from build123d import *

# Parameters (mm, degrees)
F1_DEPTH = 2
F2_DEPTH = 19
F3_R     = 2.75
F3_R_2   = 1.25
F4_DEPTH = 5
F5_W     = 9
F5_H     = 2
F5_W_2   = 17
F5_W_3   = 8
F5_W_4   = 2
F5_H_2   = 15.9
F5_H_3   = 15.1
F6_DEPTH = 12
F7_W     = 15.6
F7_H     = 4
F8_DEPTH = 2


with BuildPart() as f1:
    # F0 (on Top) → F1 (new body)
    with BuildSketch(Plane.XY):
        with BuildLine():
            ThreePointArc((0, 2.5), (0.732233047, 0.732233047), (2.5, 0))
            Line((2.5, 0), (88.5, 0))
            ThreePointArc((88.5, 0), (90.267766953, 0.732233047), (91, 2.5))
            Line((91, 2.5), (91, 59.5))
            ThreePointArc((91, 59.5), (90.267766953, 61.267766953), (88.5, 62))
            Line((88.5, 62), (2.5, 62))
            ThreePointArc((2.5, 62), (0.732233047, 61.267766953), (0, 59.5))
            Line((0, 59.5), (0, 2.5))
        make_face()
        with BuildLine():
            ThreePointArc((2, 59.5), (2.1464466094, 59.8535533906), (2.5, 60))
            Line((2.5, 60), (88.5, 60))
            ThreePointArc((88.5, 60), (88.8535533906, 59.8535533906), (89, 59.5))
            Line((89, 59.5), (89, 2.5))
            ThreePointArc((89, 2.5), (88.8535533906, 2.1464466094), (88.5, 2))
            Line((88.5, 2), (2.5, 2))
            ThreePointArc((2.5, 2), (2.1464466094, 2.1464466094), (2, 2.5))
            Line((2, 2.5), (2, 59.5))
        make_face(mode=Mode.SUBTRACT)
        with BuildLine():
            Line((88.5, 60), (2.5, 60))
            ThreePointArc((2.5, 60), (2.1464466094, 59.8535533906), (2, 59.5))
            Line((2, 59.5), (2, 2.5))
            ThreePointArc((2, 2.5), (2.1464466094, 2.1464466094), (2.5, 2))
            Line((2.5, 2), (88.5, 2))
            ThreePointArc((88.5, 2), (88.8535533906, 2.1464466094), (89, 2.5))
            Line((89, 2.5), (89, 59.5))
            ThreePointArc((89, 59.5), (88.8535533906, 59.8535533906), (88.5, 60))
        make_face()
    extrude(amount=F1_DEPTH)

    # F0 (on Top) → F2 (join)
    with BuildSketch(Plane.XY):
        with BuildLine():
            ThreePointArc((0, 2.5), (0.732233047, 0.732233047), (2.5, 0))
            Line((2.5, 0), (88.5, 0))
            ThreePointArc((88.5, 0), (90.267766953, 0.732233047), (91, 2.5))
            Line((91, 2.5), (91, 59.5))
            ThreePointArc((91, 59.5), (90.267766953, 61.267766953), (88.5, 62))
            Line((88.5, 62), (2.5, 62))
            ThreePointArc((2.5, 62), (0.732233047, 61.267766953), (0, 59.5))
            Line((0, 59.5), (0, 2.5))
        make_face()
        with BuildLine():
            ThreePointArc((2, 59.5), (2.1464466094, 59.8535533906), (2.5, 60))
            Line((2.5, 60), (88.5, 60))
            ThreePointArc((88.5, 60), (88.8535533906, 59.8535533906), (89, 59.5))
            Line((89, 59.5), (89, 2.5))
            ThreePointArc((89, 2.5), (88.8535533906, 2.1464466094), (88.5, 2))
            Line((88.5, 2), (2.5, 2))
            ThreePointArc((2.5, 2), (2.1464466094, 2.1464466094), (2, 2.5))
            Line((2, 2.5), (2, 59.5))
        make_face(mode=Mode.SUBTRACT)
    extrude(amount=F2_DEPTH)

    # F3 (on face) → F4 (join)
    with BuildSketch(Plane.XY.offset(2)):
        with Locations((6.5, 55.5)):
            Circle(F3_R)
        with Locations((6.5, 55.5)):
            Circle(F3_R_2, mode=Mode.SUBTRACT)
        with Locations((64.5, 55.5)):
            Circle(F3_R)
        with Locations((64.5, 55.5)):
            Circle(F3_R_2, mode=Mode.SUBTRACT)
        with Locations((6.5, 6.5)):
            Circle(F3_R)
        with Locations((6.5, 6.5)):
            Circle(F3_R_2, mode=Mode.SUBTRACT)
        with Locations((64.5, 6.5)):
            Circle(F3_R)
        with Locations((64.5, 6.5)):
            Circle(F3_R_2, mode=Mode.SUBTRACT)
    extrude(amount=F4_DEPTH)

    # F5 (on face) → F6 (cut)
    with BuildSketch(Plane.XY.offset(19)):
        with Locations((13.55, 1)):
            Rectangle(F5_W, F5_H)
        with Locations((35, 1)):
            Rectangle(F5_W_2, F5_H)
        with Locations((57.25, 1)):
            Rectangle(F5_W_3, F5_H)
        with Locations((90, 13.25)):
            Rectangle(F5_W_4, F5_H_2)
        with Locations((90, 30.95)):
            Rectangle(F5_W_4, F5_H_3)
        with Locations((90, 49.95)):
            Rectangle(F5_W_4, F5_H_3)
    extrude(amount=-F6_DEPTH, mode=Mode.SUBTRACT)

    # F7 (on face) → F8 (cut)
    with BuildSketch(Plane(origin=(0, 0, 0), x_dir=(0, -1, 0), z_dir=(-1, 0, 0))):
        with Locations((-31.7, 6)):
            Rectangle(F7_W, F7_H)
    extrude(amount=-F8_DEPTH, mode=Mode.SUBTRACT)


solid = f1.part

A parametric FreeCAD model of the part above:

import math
import FreeCAD as App
import Part
import Sketcher

doc = App.newDocument("Part")
body = doc.addObject("PartDesign::Body", "Body")

sketch1 = body.newObject("Sketcher::SketchObject", "Sketch")
sketch1.AttachmentSupport = (doc.getObject("XY_Plane"), [""])
sketch1.MapMode = "FlatFace"
sketch1.addGeometry([
    Part.ArcOfCircle(Part.Circle(App.Vector(2.5, 2.5, 0), App.Vector(0, 0, 1), 2.5), math.radians(180), math.radians(270)),
    Part.LineSegment(App.Vector(2.5, 0, 0), App.Vector(88.5, 0, 0)),
    Part.ArcOfCircle(Part.Circle(App.Vector(88.5, 2.5, 0), App.Vector(0, 0, 1), 2.5), math.radians(-90), math.radians(0)),
    Part.LineSegment(App.Vector(91, 2.5, 0), App.Vector(91, 59.5, 0)),
    Part.ArcOfCircle(Part.Circle(App.Vector(88.5, 59.5, 0), App.Vector(0, 0, 1), 2.5), math.radians(0), math.radians(90)),
    Part.LineSegment(App.Vector(88.5, 62, 0), App.Vector(2.5, 62, 0)),
    Part.ArcOfCircle(Part.Circle(App.Vector(2.5, 59.5, 0), App.Vector(0, 0, 1), 2.5), math.radians(90), math.radians(180)),
    Part.LineSegment(App.Vector(0, 59.5, 0), App.Vector(0, 2.5, 0)),
], False)
sketch1.addConstraint([
    Sketcher.Constraint("Tangent", 0, 2, 1, 1),
    Sketcher.Constraint("Tangent", 1, 2, 2, 1),
    Sketcher.Constraint("Tangent", 2, 2, 3, 1),
    Sketcher.Constraint("Tangent", 3, 2, 4, 1),
    Sketcher.Constraint("Tangent", 4, 2, 5, 1),
    Sketcher.Constraint("Tangent", 5, 2, 6, 1),
    Sketcher.Constraint("Tangent", 6, 2, 7, 1),
    Sketcher.Constraint("Tangent", 7, 2, 0, 1),
    Sketcher.Constraint("Horizontal", 1),
    Sketcher.Constraint("Vertical", 3),
    Sketcher.Constraint("Horizontal", 5),
    Sketcher.Constraint("Vertical", 7),
    Sketcher.Constraint("Equal", 0, 2),
    Sketcher.Constraint("Equal", 2, 4),
    Sketcher.Constraint("Equal", 4, 6),
    Sketcher.Constraint("PointOnObject", 0, 2, -1),
    Sketcher.Constraint("PointOnObject", 6, 2, -2),
    Sketcher.Constraint("Radius", 0, 2.5),
    Sketcher.Constraint("DistanceX", 1, 1, 1, 2, 86.0),
    Sketcher.Constraint("DistanceY", 3, 1, 3, 2, 57.0),
])
pad1 = body.newObject("PartDesign::Pad", "Pad")
pad1.Profile = sketch1
pad1.Length = 2

sketch2 = body.newObject("Sketcher::SketchObject", "Sketch001")
sketch2.AttachmentSupport = (doc.getObject("XY_Plane"), [""])
sketch2.MapMode = "FlatFace"
sketch2.addGeometry([
    Part.ArcOfCircle(Part.Circle(App.Vector(2.5, 2.5, 0), App.Vector(0, 0, 1), 2.5), math.radians(180), math.radians(270)),
    Part.LineSegment(App.Vector(2.5, 0, 0), App.Vector(88.5, 0, 0)),
    Part.ArcOfCircle(Part.Circle(App.Vector(88.5, 2.5, 0), App.Vector(0, 0, 1), 2.5), math.radians(-90), math.radians(0)),
    Part.LineSegment(App.Vector(91, 2.5, 0), App.Vector(91, 59.5, 0)),
    Part.ArcOfCircle(Part.Circle(App.Vector(88.5, 59.5, 0), App.Vector(0, 0, 1), 2.5), math.radians(0), math.radians(90)),
    Part.LineSegment(App.Vector(88.5, 62, 0), App.Vector(2.5, 62, 0)),
    Part.ArcOfCircle(Part.Circle(App.Vector(2.5, 59.5, 0), App.Vector(0, 0, 1), 2.5), math.radians(90), math.radians(180)),
    Part.LineSegment(App.Vector(0, 59.5, 0), App.Vector(0, 2.5, 0)),
    Part.LineSegment(App.Vector(2, 2.5, 0), App.Vector(2, 59.5, 0)),
    Part.ArcOfCircle(Part.Circle(App.Vector(2.5, 59.5, 0), App.Vector(0, 0, 1), 0.5), math.radians(90), math.radians(180)),
    Part.LineSegment(App.Vector(2.5, 60, 0), App.Vector(88.5, 60, 0)),
    Part.ArcOfCircle(Part.Circle(App.Vector(88.5, 59.5, 0), App.Vector(0, 0, 1), 0.5), math.radians(0), math.radians(90)),
    Part.LineSegment(App.Vector(89, 59.5, 0), App.Vector(89, 2.5, 0)),
    Part.ArcOfCircle(Part.Circle(App.Vector(88.5, 2.5, 0), App.Vector(0, 0, 1), 0.5), math.radians(-90), math.radians(0)),
    Part.LineSegment(App.Vector(88.5, 2, 0), App.Vector(2.5, 2, 0)),
    Part.ArcOfCircle(Part.Circle(App.Vector(2.5, 2.5, 0), App.Vector(0, 0, 1), 0.5), math.radians(180), math.radians(270)),
], False)
sketch2.addConstraint([
    Sketcher.Constraint("Tangent", 0, 2, 1, 1),
    Sketcher.Constraint("Tangent", 1, 2, 2, 1),
    Sketcher.Constraint("Tangent", 2, 2, 3, 1),
    Sketcher.Constraint("Tangent", 3, 2, 4, 1),
    Sketcher.Constraint("Tangent", 4, 2, 5, 1),
    Sketcher.Constraint("Tangent", 5, 2, 6, 1),
    Sketcher.Constraint("Tangent", 6, 2, 7, 1),
    Sketcher.Constraint("Tangent", 7, 2, 0, 1),
    Sketcher.Constraint("Tangent", 8, 2, 9, 2),
    Sketcher.Constraint("Tangent", 9, 1, 10, 1),
    Sketcher.Constraint("Tangent", 10, 2, 11, 2),
    Sketcher.Constraint("Tangent", 11, 1, 12, 1),
    Sketcher.Constraint("Tangent", 12, 2, 13, 2),
    Sketcher.Constraint("Tangent", 13, 1, 14, 1),
    Sketcher.Constraint("Tangent", 14, 2, 15, 2),
    Sketcher.Constraint("Tangent", 15, 1, 8, 1),
    Sketcher.Constraint("Horizontal", 1),
    Sketcher.Constraint("Vertical", 3),
    Sketcher.Constraint("Horizontal", 5),
    Sketcher.Constraint("Vertical", 7),
    Sketcher.Constraint("Vertical", 8),
    Sketcher.Constraint("Horizontal", 10),
    Sketcher.Constraint("Vertical", 12),
    Sketcher.Constraint("Horizontal", 14),
    Sketcher.Constraint("Coincident", 9, 3, 6, 3),
    Sketcher.Constraint("Coincident", 11, 3, 4, 3),
    Sketcher.Constraint("Coincident", 13, 3, 2, 3),
    Sketcher.Constraint("Equal", 0, 2),
    Sketcher.Constraint("Equal", 2, 4),
    Sketcher.Constraint("Equal", 4, 6),
    Sketcher.Constraint("Equal", 13, 15),
    Sketcher.Constraint("PointOnObject", 0, 2, -1),
    Sketcher.Constraint("PointOnObject", 6, 2, -2),
    Sketcher.Constraint("Radius", 0, 2.5),
    Sketcher.Constraint("Radius", 9, 0.5),
    Sketcher.Constraint("DistanceX", 1, 1, 1, 2, 86.0),
    Sketcher.Constraint("DistanceY", 3, 1, 3, 2, 57.0),
])
pad2 = body.newObject("PartDesign::Pad", "Pad001")
pad2.Profile = sketch2
pad2.Length = 19

sketch3 = body.newObject("Sketcher::SketchObject", "Sketch002")
sketch3.AttachmentSupport = (doc.getObject("XY_Plane"), [""])
sketch3.MapMode = "FlatFace"
sketch3.AttachmentOffset = App.Placement(App.Vector(0, 0, 2), App.Rotation())
sketch3.addGeometry([
    Part.Circle(App.Vector(6.5, 55.5, 0), App.Vector(0, 0, 1), 2.8),
    Part.Circle(App.Vector(6.5, 55.5, 0), App.Vector(0, 0, 1), 1.2),
    Part.Circle(App.Vector(64.5, 55.5, 0), App.Vector(0, 0, 1), 2.8),
    Part.Circle(App.Vector(64.5, 55.5, 0), App.Vector(0, 0, 1), 1.2),
    Part.Circle(App.Vector(6.5, 6.5, 0), App.Vector(0, 0, 1), 2.8),
    Part.Circle(App.Vector(6.5, 6.5, 0), App.Vector(0, 0, 1), 1.2),
    Part.Circle(App.Vector(64.5, 6.5, 0), App.Vector(0, 0, 1), 2.8),
    Part.Circle(App.Vector(64.5, 6.5, 0), App.Vector(0, 0, 1), 1.2),
], False)
sketch3.addConstraint([
    Sketcher.Constraint("Coincident", 1, 3, 0, 3),
    Sketcher.Constraint("Coincident", 3, 3, 2, 3),
    Sketcher.Constraint("Coincident", 5, 3, 4, 3),
    Sketcher.Constraint("Coincident", 7, 3, 6, 3),
    Sketcher.Constraint("Equal", 0, 2),
    Sketcher.Constraint("Equal", 1, 3),
    Sketcher.Constraint("Equal", 2, 4),
    Sketcher.Constraint("Equal", 3, 5),
    Sketcher.Constraint("Equal", 4, 6),
    Sketcher.Constraint("Equal", 5, 7),
    Sketcher.Constraint("Horizontal", 1, 3, 2, 3),
    Sketcher.Constraint("Horizontal", 5, 3, 6, 3),
    Sketcher.Constraint("Vertical", 1, 3, 4, 3),
    Sketcher.Constraint("Vertical", 3, 3, 6, 3),
    Sketcher.Constraint("Diameter", 0, 5.5),
    Sketcher.Constraint("Diameter", 1, 2.5),
    Sketcher.Constraint("DistanceX", 0, 3, 2, 3, 58.0),
    Sketcher.Constraint("DistanceY", 4, 3, 0, 3, 49.0),
    Sketcher.Constraint("DistanceX", -1, 1, 0, 3, 6.5),
    Sketcher.Constraint("DistanceY", -1, 1, 0, 3, 55.5),
])
pad3 = body.newObject("PartDesign::Pad", "Pad002")
pad3.Profile = sketch3
pad3.Length = 5

sketch4 = body.newObject("Sketcher::SketchObject", "Sketch003")
sketch4.AttachmentSupport = (doc.getObject("XY_Plane"), [""])
sketch4.MapMode = "FlatFace"
sketch4.AttachmentOffset = App.Placement(App.Vector(0, 0, 19), App.Rotation())
sketch4.addGeometry([
    Part.LineSegment(App.Vector(9.1, 2, 0), App.Vector(9.1, 0, 0)),
    Part.LineSegment(App.Vector(9.1, 0, 0), App.Vector(18.1, 0, 0)),
    Part.LineSegment(App.Vector(18.1, 0, 0), App.Vector(18.1, 2, 0)),
    Part.LineSegment(App.Vector(18.1, 2, 0), App.Vector(9.1, 2, 0)),
    Part.LineSegment(App.Vector(26.5, 2, 0), App.Vector(26.5, 0, 0)),
    Part.LineSegment(App.Vector(26.5, 0, 0), App.Vector(43.5, 0, 0)),
    Part.LineSegment(App.Vector(43.5, 0, 0), App.Vector(43.5, 2, 0)),
    Part.LineSegment(App.Vector(43.5, 2, 0), App.Vector(26.5, 2, 0)),
    Part.LineSegment(App.Vector(53.2, 2, 0), App.Vector(53.2, 0, 0)),
    Part.LineSegment(App.Vector(53.2, 0, 0), App.Vector(61.2, 0, 0)),
    Part.LineSegment(App.Vector(61.2, 0, 0), App.Vector(61.2, 2, 0)),
    Part.LineSegment(App.Vector(61.2, 2, 0), App.Vector(53.2, 2, 0)),
    Part.LineSegment(App.Vector(89, 21.2, 0), App.Vector(89, 5.3, 0)),
    Part.LineSegment(App.Vector(89, 5.3, 0), App.Vector(91, 5.3, 0)),
    Part.LineSegment(App.Vector(91, 5.3, 0), App.Vector(91, 21.2, 0)),
    Part.LineSegment(App.Vector(91, 21.2, 0), App.Vector(89, 21.2, 0)),
    Part.LineSegment(App.Vector(89, 38.5, 0), App.Vector(89, 23.4, 0)),
    Part.LineSegment(App.Vector(89, 23.4, 0), App.Vector(91, 23.4, 0)),
    Part.LineSegment(App.Vector(91, 23.4, 0), App.Vector(91, 38.5, 0)),
    Part.LineSegment(App.Vector(91, 38.5, 0), App.Vector(89, 38.5, 0)),
    Part.LineSegment(App.Vector(89, 57.5, 0), App.Vector(89, 42.4, 0)),
    Part.LineSegment(App.Vector(89, 42.4, 0), App.Vector(91, 42.4, 0)),
    Part.LineSegment(App.Vector(91, 42.4, 0), App.Vector(91, 57.5, 0)),
    Part.LineSegment(App.Vector(91, 57.5, 0), App.Vector(89, 57.5, 0)),
], False)
sketch4.addConstraint([
    Sketcher.Constraint("Coincident", 0, 2, 1, 1),
    Sketcher.Constraint("Coincident", 1, 2, 2, 1),
    Sketcher.Constraint("Coincident", 2, 2, 3, 1),
    Sketcher.Constraint("Coincident", 3, 2, 0, 1),
    Sketcher.Constraint("Coincident", 4, 2, 5, 1),
    Sketcher.Constraint("Coincident", 5, 2, 6, 1),
    Sketcher.Constraint("Coincident", 6, 2, 7, 1),
    Sketcher.Constraint("Coincident", 7, 2, 4, 1),
    Sketcher.Constraint("Coincident", 8, 2, 9, 1),
    Sketcher.Constraint("Coincident", 9, 2, 10, 1),
    Sketcher.Constraint("Coincident", 10, 2, 11, 1),
    Sketcher.Constraint("Coincident", 11, 2, 8, 1),
    Sketcher.Constraint("Coincident", 12, 2, 13, 1),
    Sketcher.Constraint("Coincident", 13, 2, 14, 1),
    Sketcher.Constraint("Coincident", 14, 2, 15, 1),
    Sketcher.Constraint("Coincident", 15, 2, 12, 1),
    Sketcher.Constraint("Coincident", 16, 2, 17, 1),
    Sketcher.Constraint("Coincident", 17, 2, 18, 1),
    Sketcher.Constraint("Coincident", 18, 2, 19, 1),
    Sketcher.Constraint("Coincident", 19, 2, 16, 1),
    Sketcher.Constraint("Coincident", 20, 2, 21, 1),
    Sketcher.Constraint("Coincident", 21, 2, 22, 1),
    Sketcher.Constraint("Coincident", 22, 2, 23, 1),
    Sketcher.Constraint("Coincident", 23, 2, 20, 1),
    Sketcher.Constraint("Vertical", 0),
    Sketcher.Constraint("Horizontal", 1),
    Sketcher.Constraint("Vertical", 2),
    Sketcher.Constraint("Horizontal", 3),
    Sketcher.Constraint("Vertical", 4),
    Sketcher.Constraint("Horizontal", 5),
    Sketcher.Constraint("Vertical", 6),
    Sketcher.Constraint("Horizontal", 7),
    Sketcher.Constraint("Vertical", 8),
    Sketcher.Constraint("Horizontal", 9),
    Sketcher.Constraint("Vertical", 10),
    Sketcher.Constraint("Horizontal", 11),
    Sketcher.Constraint("Vertical", 12),
    Sketcher.Constraint("Horizontal", 13),
    Sketcher.Constraint("Vertical", 14),
    Sketcher.Constraint("Horizontal", 15),
    Sketcher.Constraint("Vertical", 16),
    Sketcher.Constraint("Horizontal", 17),
    Sketcher.Constraint("Vertical", 18),
    Sketcher.Constraint("Horizontal", 19),
    Sketcher.Constraint("Vertical", 20),
    Sketcher.Constraint("Horizontal", 21),
    Sketcher.Constraint("Vertical", 22),
    Sketcher.Constraint("Horizontal", 23),
    Sketcher.Constraint("PointOnObject", 0, 2, -1),
    Sketcher.Constraint("PointOnObject", 4, 2, -1),
    Sketcher.Constraint("PointOnObject", 8, 2, -1),
    Sketcher.Constraint("Horizontal", 3, 2, 6, 2),
    Sketcher.Constraint("Horizontal", 7, 2, 10, 2),
    Sketcher.Constraint("Vertical", 15, 2, 16, 2),
    Sketcher.Constraint("Vertical", 14, 2, 17, 2),
    Sketcher.Constraint("Vertical", 19, 2, 20, 2),
    Sketcher.Constraint("Vertical", 18, 2, 21, 2),
    Sketcher.Constraint("Equal", 23, 0),
    Sketcher.Constraint("Equal", 18, 20),
    Sketcher.Constraint("DistanceX", 1, 1, 1, 2, 9.0),
    Sketcher.Constraint("DistanceX", 5, 1, 5, 2, 17.0),
    Sketcher.Constraint("DistanceX", 9, 1, 9, 2, 8.0),
    Sketcher.Constraint("DistanceX", 13, 1, 13, 2, 2.0),
    Sketcher.Constraint("DistanceY", 12, 2, 12, 1, 15.9),
    Sketcher.Constraint("DistanceY", 16, 2, 16, 1, 15.1),
    Sketcher.Constraint("DistanceX", -1, 1, 12, 2, 89.0),
    Sketcher.Constraint("DistanceY", 16, 2, 20, 2, 19.0),
    Sketcher.Constraint("DistanceX", -1, 1, 4, 2, 26.5),
    Sketcher.Constraint("DistanceY", -1, 1, 12, 2, 5.3),
    Sketcher.Constraint("DistanceY", -1, 1, 16, 2, 23.4),
    Sketcher.Constraint("DistanceX", 1, 2, 8, 2, 35.2),
    Sketcher.Constraint("DistanceX", -1, 1, 0, 2, 9.05),
])
pocket1 = body.newObject("PartDesign::Pocket", "Pocket")
pocket1.Profile = sketch4
pocket1.Length = 12

sketch5 = body.newObject("Sketcher::SketchObject", "Sketch004")
sketch5.AttachmentSupport = (doc.getObject("YZ_Plane"), [""])
sketch5.MapMode = "FlatFace"
sketch5.addGeometry([
    Part.LineSegment(App.Vector(39.5, 8, 0), App.Vector(39.5, 4, 0)),
    Part.LineSegment(App.Vector(39.5, 4, 0), App.Vector(23.9, 4, 0)),
    Part.LineSegment(App.Vector(23.9, 4, 0), App.Vector(23.9, 8, 0)),
    Part.LineSegment(App.Vector(23.9, 8, 0), App.Vector(39.5, 8, 0)),
], False)
sketch5.addConstraint([
    Sketcher.Constraint("Coincident", 0, 2, 1, 1),
    Sketcher.Constraint("Coincident", 1, 2, 2, 1),
    Sketcher.Constraint("Coincident", 2, 2, 3, 1),
    Sketcher.Constraint("Coincident", 3, 2, 0, 1),
    Sketcher.Constraint("Vertical", 0),
    Sketcher.Constraint("Horizontal", 1),
    Sketcher.Constraint("Vertical", 2),
    Sketcher.Constraint("Horizontal", 3),
    Sketcher.Constraint("DistanceY", 0, 2, 0, 1, 4.0),
    Sketcher.Constraint("DistanceX", 1, 2, 1, 1, 15.6),
    Sketcher.Constraint("DistanceY", -1, 1, 0, 2, 4.0),
    Sketcher.Constraint("DistanceX", -1, 1, 0, 2, 39.5),
])
pocket2 = body.newObject("PartDesign::Pocket", "Pocket001")
pocket2.Profile = sketch5
pocket2.Length = 2
pocket2.Reversed = True

doc.recompute()
